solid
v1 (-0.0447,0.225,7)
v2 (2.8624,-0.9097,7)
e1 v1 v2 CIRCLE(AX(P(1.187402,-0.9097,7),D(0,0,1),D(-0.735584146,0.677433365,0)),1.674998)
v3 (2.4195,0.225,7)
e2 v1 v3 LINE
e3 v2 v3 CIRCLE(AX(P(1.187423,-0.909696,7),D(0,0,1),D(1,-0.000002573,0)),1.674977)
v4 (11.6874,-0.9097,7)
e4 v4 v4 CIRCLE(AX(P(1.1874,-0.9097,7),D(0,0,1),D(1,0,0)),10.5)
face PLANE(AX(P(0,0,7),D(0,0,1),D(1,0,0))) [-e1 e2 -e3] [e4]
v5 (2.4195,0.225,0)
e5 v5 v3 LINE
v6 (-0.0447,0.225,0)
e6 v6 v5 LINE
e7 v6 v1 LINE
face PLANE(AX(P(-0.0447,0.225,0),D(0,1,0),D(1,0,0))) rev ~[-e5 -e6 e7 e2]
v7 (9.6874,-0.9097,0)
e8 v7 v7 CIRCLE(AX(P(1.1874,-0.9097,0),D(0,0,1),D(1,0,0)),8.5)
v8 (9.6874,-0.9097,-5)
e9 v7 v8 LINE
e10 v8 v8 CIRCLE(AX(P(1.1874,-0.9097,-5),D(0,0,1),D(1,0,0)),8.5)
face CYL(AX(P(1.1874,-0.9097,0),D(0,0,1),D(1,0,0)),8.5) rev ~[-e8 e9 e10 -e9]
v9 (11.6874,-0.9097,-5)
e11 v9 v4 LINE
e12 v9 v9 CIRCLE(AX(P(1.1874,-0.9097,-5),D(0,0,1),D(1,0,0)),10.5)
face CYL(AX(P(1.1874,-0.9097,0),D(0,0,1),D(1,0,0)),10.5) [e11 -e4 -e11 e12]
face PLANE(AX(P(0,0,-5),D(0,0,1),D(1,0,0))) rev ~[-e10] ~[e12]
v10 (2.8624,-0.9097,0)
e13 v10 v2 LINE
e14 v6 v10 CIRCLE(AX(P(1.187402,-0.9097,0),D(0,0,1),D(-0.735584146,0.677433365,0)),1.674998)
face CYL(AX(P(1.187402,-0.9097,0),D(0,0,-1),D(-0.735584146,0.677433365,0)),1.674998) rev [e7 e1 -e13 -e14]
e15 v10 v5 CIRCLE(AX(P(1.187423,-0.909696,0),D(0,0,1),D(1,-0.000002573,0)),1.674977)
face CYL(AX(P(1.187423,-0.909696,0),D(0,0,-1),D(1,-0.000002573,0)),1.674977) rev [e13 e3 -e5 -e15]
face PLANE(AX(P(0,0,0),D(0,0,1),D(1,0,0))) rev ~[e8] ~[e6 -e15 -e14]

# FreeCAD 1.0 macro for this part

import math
import FreeCAD as App
import Part
import Sketcher
from FreeCAD import Vector

doc = App.newDocument("Part")
params = doc.addObject("Spreadsheet::Sheet", "Params")
for row, (alias, value) in enumerate([
    ("sketch1_diameter", "21 mm"),
    ("pad1_length", "7 mm"),
    ("sketch2_diameter", "21 mm"),
    ("sketch2_diameter2", "17 mm"),
    ("pad2_length", "5 mm"),
], start=1):
    params.set(f"A{row}", alias)
    params.set(f"B{row}", "=" + value)
    params.setAlias(f"B{row}", alias)

body = doc.addObject("PartDesign::Body", "Body")

sketch1 = doc.addObject("Sketcher::SketchObject", "Sketch")
body.addObject(sketch1)
sketch1.AttachmentSupport = (doc.XY_Plane, [""])
sketch1.MapMode = "FlatFace"
sketch1.addGeometry([
    Part.Circle(Vector(1.2, -0.9, 0), Vector(0, 0, 1), 10.5),
    Part.LineSegment(Vector(0, 0.2, 0), Vector(2.4, 0.2, 0)),
    Part.ArcOfCircle(Part.Circle(Vector(1.2, -0.9, 0), Vector(0, 0, 1), 1.7), math.radians(0), math.radians(43)),
    Part.ArcOfCircle(Part.Circle(Vector(1.2, -0.9, 0), Vector(0, 0, 1), 1.7), math.radians(137), math.radians(360)),
], False)
sketch1.addConstraint([
    Sketcher.Constraint("Coincident", 1, 2, 2, 2),
    Sketcher.Constraint("Tangent", 2, 1, 3, 2),
    Sketcher.Constraint("Coincident", 3, 1, 1, 1),
    Sketcher.Constraint("Horizontal", 1),
    Sketcher.Constraint("Coincident", 2, 3, 0, 3),
    Sketcher.Constraint("Equal", 2, 3),
    Sketcher.Constraint("Horizontal", 3, 3, 2, 1),
    Sketcher.Constraint("Diameter", 0, 21.0),
    Sketcher.Constraint("DistanceY", -1, 1, 1, 2, 0.225),
    Sketcher.Constraint("Radius", 2, 1.675),
    Sketcher.Constraint("DistanceX", 1, 1, 1, 2, 2.4642),
    Sketcher.Constraint("DistanceX", -1, 1, 0, 3, 1.1874),
])
sketch1.setExpression("Constraints[7]", "Params.sketch1_diameter")
pad1 = doc.addObject("PartDesign::Pad", "Pad")
body.addObject(pad1)
pad1.Profile = sketch1
pad1.setExpression("Length", "Params.pad1_length")

sketch2 = doc.addObject("Sketcher::SketchObject", "Sketch001")
body.addObject(sketch2)
sketch2.AttachmentSupport = (doc.XY_Plane, [""])
sketch2.MapMode = "FlatFace"
sketch2.addGeometry([
    Part.Circle(Vector(1, -1, 0), Vector(0, 0, 1), 10),
    Part.Circle(Vector(1, -1, 0), Vector(0, 0, 1), 8),
], False)
sketch2.addConstraint([
    Sketcher.Constraint("Coincident", 1, 3, 0, 3),
    Sketcher.Constraint("Diameter", 0, 21.0),
    Sketcher.Constraint("Diameter", 1, 17.0),
    Sketcher.Constraint("DistanceX", -1, 1, 0, 3, 1.1874),
    Sketcher.Constraint("DistanceY", 0, 3, -1, 1, 0.9097),
])
sketch2.setExpression("Constraints[1]", "Params.sketch2_diameter")
sketch2.setExpression("Constraints[2]", "Params.sketch2_diameter2")
pad2 = doc.addObject("PartDesign::Pad", "Pad001")
body.addObject(pad2)
pad2.Profile = sketch2
pad2.setExpression("Length", "Params.pad2_length")
pad2.Reversed = True

doc.recompute()
